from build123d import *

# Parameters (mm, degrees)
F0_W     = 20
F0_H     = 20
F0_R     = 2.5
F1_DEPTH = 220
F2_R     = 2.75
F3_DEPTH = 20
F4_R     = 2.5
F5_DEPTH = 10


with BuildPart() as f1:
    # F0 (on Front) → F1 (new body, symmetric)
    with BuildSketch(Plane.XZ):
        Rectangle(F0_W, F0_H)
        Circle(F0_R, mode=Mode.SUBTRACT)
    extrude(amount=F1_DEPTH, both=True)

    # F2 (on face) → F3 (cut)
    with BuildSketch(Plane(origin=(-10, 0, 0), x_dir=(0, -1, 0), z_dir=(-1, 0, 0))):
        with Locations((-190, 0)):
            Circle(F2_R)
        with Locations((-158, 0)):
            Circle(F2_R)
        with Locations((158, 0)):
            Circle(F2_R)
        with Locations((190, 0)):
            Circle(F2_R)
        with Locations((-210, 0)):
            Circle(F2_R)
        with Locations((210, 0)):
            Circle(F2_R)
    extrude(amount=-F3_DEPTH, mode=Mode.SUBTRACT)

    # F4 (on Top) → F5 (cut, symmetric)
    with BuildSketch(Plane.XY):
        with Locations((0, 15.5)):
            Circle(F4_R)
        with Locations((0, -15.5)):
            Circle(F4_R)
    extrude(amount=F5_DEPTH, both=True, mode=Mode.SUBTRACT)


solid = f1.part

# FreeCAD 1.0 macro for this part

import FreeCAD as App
import Part
import Sketcher
Q = App.Units.Quantity

doc = App.newDocument("Part")
params = doc.addObject("Spreadsheet::Sheet", "Params")
for row, (alias, value) in enumerate([
    ("sketch1_diameter", "5 mm"),
    ("sketch1_width", "20 mm"),
    ("pad1_length", "440 mm"),
    ("sketch2_diameter", "5.5 mm"),
    ("pocket1_length", "20 mm"),
    ("sketch3_diameter", "5 mm"),
    ("pocket2_length", "20 mm"),
], start=1):
    params.set(f"A{row}", alias)
    params.set(f"B{row}", "=" + value)
    params.setAlias(f"B{row}", alias)

body = doc.addObject("PartDesign::Body", "Body")

sketch1 = body.newObject("Sketcher::SketchObject", "Sketch")
sketch1.AttachmentSupport = (doc.getObject("XZ_Plane"), [""])
sketch1.MapMode = "FlatFace"
sketch1.addGeometry([
    Part.LineSegment(App.Vector(-10, 10, 0), App.Vector(-10, -10, 0)),
    Part.LineSegment(App.Vector(-10, -10, 0), App.Vector(10, -10, 0)),
    Part.LineSegment(App.Vector(10, -10, 0), App.Vector(10, 10, 0)),
    Part.LineSegment(App.Vector(10, 10, 0), App.Vector(-10, 10, 0)),
    Part.Circle(App.Vector(0, 0, 0), App.Vector(0, 0, 1), 2.5),
], False)
sketch1.addConstraint([
    Sketcher.Constraint("Coincident", 0, 2, 1, 1),
    Sketcher.Constraint("Coincident", 1, 2, 2, 1),
    Sketcher.Constraint("Coincident", 2, 2, 3, 1),
    Sketcher.Constraint("Coincident", 3, 2, 0, 1),
    Sketcher.Constraint("Vertical", 0),
    Sketcher.Constraint("Horizontal", 1),
    Sketcher.Constraint("Vertical", 2),
    Sketcher.Constraint("Horizontal", 3),
    Sketcher.Constraint("Coincident", 4, 3, -1, 1),
    Sketcher.Constraint("Symmetric", 0, 2, 2, 2, -1, 1),
    Sketcher.Constraint("Equal", 3, 0),
    Sketcher.Constraint("Diameter", 4, Q("5 mm")),
    Sketcher.Constraint("DistanceX", 1, 1, 1, 2, Q("20 mm")),
])
sketch1.setExpression("Constraints[11]", "Params.sketch1_diameter")
sketch1.setExpression("Constraints[12]", "Params.sketch1_width")
pad1 = body.newObject("PartDesign::Pad", "Pad")
pad1.Profile = sketch1
pad1.setExpression("Length", "Params.pad1_length")
pad1.Midplane = True

sketch2 = body.newObject("Sketcher::SketchObject", "Sketch001")
sketch2.AttachmentSupport = (doc.getObject("YZ_Plane"), [""])
sketch2.MapMode = "FlatFace"
sketch2.AttachmentOffset = App.Placement(App.Vector(0, 0, -10), App.Rotation())
sketch2.addGeometry([
    Part.Circle(App.Vector(190, 0, 0), App.Vector(0, 0, 1), 2.75),
    Part.Circle(App.Vector(158, 0, 0), App.Vector(0, 0, 1), 2.75),
    Part.Circle(App.Vector(-158, 0, 0), App.Vector(0, 0, 1), 2.75),
    Part.Circle(App.Vector(-190, 0, 0), App.Vector(0, 0, 1), 2.75),
    Part.Circle(App.Vector(210, 0, 0), App.Vector(0, 0, 1), 2.75),
    Part.Circle(App.Vector(-210, 0, 0), App.Vector(0, 0, 1), 2.75),
], False)
sketch2.addConstraint([
    Sketcher.Constraint("Equal", 0, 1),
    Sketcher.Constraint("Equal", 1, 2),
    Sketcher.Constraint("Equal", 2, 3),
    Sketcher.Constraint("Equal", 3, 4),
    Sketcher.Constraint("Equal", 4, 5),
    Sketcher.Constraint("Symmetric", 1, 3, 2, 3, -1, 1),
    Sketcher.Constraint("Symmetric", 0, 3, 3, 3, -1, 1),
    Sketcher.Constraint("Symmetric", 4, 3, 5, 3, -1, 1),
    Sketcher.Constraint("PointOnObject", 0, 3, -1),
    Sketcher.Constraint("PointOnObject", 1, 3, -1),
    Sketcher.Constraint("PointOnObject", 4, 3, -1),
    Sketcher.Constraint("Diameter", 0, Q("5.5 mm")),
    Sketcher.Constraint("DistanceX", -1, 1, 0, 3, Q("190 mm")),
    Sketcher.Constraint("DistanceX", -1, 1, 1, 3, Q("158 mm")),
    Sketcher.Constraint("DistanceX", -1, 1, 4, 3, Q("210 mm")),
])
sketch2.setExpression("Constraints[11]", "Params.sketch2_diameter")
pocket1 = body.newObject("PartDesign::Pocket", "Pocket")
pocket1.Profile = sketch2
pocket1.setExpression("Length", "Params.pocket1_length")
pocket1.Reversed = True

sketch3 = body.newObject("Sketcher::SketchObject", "Sketch002")
sketch3.AttachmentSupport = (doc.getObject("XY_Plane"), [""])
sketch3.MapMode = "FlatFace"
sketch3.addGeometry([
    Part.Circle(App.Vector(0, 15.5, 0), App.Vector(0, 0, 1), 2.5),
    Part.Circle(App.Vector(0, -15.5, 0), App.Vector(0, 0, 1), 2.5),
], False)
sketch3.addConstraint([
    Sketcher.Constraint("Equal", 0, 1),
    Sketcher.Constraint("Symmetric", 0, 3, 1, 3, -1, 1),
    Sketcher.Constraint("PointOnObject", 0, 3, -2),
    Sketcher.Constraint("Diameter", 0, Q("5 mm")),
    Sketcher.Constraint("DistanceY", 1, 3, 0, 3, Q("31 mm")),
])
sketch3.setExpression("Constraints[3]", "Params.sketch3_diameter")
pocket2 = body.newObject("PartDesign::Pocket", "Pocket001")
pocket2.Profile = sketch3
pocket2.setExpression("Length", "Params.pocket2_length")
pocket2.Midplane = True

doc.recompute()
